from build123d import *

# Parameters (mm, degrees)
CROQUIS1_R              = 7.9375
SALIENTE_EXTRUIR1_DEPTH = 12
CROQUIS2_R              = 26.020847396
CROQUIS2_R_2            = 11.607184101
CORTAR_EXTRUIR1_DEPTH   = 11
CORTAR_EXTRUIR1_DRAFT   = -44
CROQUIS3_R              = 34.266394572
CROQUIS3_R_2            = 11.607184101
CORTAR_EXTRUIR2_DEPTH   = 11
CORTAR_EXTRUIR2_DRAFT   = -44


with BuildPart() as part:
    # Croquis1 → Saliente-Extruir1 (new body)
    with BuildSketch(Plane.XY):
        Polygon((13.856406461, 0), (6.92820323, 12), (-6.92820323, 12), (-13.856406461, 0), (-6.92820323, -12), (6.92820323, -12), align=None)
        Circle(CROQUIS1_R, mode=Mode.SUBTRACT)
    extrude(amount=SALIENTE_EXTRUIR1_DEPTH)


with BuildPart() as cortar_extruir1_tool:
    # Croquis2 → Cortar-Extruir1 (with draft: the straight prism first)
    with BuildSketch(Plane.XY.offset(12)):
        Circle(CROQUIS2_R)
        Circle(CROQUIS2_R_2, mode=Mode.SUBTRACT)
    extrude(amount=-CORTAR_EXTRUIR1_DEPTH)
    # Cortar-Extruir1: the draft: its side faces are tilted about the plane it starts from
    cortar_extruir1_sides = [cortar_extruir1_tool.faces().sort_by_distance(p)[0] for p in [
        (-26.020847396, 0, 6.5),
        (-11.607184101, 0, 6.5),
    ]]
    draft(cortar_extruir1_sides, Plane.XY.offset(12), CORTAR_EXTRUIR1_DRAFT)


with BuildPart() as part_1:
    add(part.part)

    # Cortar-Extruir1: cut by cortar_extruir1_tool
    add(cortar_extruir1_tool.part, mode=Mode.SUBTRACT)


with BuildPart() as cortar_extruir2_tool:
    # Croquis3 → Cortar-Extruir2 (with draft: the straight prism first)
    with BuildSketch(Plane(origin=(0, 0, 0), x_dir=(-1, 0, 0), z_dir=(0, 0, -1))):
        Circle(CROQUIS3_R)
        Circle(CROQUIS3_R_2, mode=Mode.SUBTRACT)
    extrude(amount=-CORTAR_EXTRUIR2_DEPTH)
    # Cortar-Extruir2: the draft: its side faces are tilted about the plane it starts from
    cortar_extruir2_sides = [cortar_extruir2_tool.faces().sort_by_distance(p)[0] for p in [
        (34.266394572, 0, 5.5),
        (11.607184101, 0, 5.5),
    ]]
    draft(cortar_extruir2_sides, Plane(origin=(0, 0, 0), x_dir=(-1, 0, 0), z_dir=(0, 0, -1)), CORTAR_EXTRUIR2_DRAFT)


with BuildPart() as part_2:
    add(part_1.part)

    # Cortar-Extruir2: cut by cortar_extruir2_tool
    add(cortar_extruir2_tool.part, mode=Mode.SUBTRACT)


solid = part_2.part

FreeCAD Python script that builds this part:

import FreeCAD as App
import Part
import Sketcher
from FreeCAD import Vector
Q = App.Units.Quantity


def faces_at(feature, points):
    """Names of the faces that lie closest to the given points."""
    faces = feature.Shape.Faces
    near = lambda p: min(range(len(faces)), key=lambda i: faces[i].distToShape(Part.Vertex(*p))[0])
    return sorted({f"Face{near(p) + 1}" for p in points})


def add_polygon(sketch, points):
    """Adds a closed chain of lines whose ends are joined by coincident constraints."""
    first, n = sketch.GeometryCount, len(points)
    for a, b in zip(points, points[1:] + points[:1]):
        sketch.addGeometry(Part.LineSegment(App.Vector(*a, 0), App.Vector(*b, 0)), False)
    for i in range(n):
        sketch.addConstraint(Sketcher.Constraint("Coincident", first + i, 2, first + (i + 1) % n, 1))

doc = App.newDocument("Part")
body = doc.addObject("PartDesign::Body", "Body")

# Sketch on XY plane
sketch1 = body.newObject("Sketcher::SketchObject", "Sketch")
sketch1.AttachmentSupport = (doc.getObject("XY_Plane"), [""])
sketch1.MapMode = "FlatFace"
add_polygon(sketch1, [(14, 0), (7, 12), (-7, 12), (-14, 0), (-7, -12), (7, -12)])  # lines 0-5
sketch1.addGeometry(Part.Circle(Vector(0, 0, 0), Vector(0, 0, 1), 8), False)  # 6
sketch1.addConstraint([
    Sketcher.Constraint("Horizontal", 1),
    Sketcher.Constraint("Horizontal", 4),
    Sketcher.Constraint("Coincident", 6, 3, -1, 1),
    Sketcher.Constraint("Symmetric", 0, 2, 3, 2, -1, 1),
    Sketcher.Constraint("Symmetric", 2, 2, 5, 2, -1, 1),
    Sketcher.Constraint("PointOnObject", 2, 2, -1),
    Sketcher.Constraint("Parallel", 2, 5),
    Sketcher.Constraint("Vertical", 1, 2, 3, 2),
    Sketcher.Constraint("Angle", 0, Q("120 deg")),
    Sketcher.Constraint("Diameter", 6, 15.875),
    Sketcher.Constraint("DistanceY", -1, 1, 0, 2, 12.0),
    Sketcher.Constraint("DistanceX", 1, 2, 1, 1, 13.856406),
])
pad1 = body.newObject("PartDesign::Pad", "Pad")
pad1.Profile = sketch1
pad1.Length = 12
body2 = doc.addObject("PartDesign::Body", "Body001")

# Sketch on XY plane
sketch2 = body2.newObject("Sketcher::SketchObject", "Sketch001")
sketch2.AttachmentSupport = (doc.getObject("XY_Plane001"), [""])
sketch2.MapMode = "FlatFace"
sketch2.AttachmentOffset = App.Placement(Vector(0, 0, 12), App.Rotation())
sketch2.addGeometry([
    Part.Circle(Vector(0, 0, 0), Vector(0, 0, 1), 26),
    Part.Circle(Vector(0, 0, 0), Vector(0, 0, 1), 12),
], False)
sketch2.addConstraint([
    Sketcher.Constraint("Coincident", 0, 3, -1, 1),
    Sketcher.Constraint("Coincident", 1, 3, -1, 1),
    Sketcher.Constraint("Diameter", 1, 23.214368),
    Sketcher.Constraint("Diameter", 0, 52.041695),
])
pad2 = body2.newObject("PartDesign::Pad", "Pad001")
pad2.Profile = sketch2
pad2.Length = 11
pad2.Reversed = True
doc.recompute()

datumplane = body2.newObject("PartDesign::Plane", "DatumPlane")
datumplane.AttachmentSupport = (doc.getObject("XY_Plane001"), [""])
datumplane.MapMode = "FlatFace"
datumplane.AttachmentOffset = App.Placement(Vector(0, 0, 12), App.Rotation())
draft = body2.newObject("PartDesign::Draft", "Draft")
draft.Base = (pad2, faces_at(pad2, [(-26.021, 0, 6.5), (-11.607, 0, 6.5)]))
draft.NeutralPlane = (datumplane, [""])
draft.Angle = 44
draft.Reversed = True
doc.recompute()

boolean = body.newObject("PartDesign::Boolean", "Boolean")
boolean.Type = "Cut"
boolean.addObjects([body2])
body3 = doc.addObject("PartDesign::Body", "Body002")

# Sketch on XY plane
sketch3 = body3.newObject("Sketcher::SketchObject", "Sketch002")
sketch3.AttachmentSupport = (doc.getObject("XY_Plane002"), [""])
sketch3.MapMode = "FlatFace"
sketch3.addGeometry([
    Part.Circle(Vector(0, 0, 0), Vector(0, 0, 1), 34),
    Part.Circle(Vector(0, 0, 0), Vector(0, 0, 1), 12),
], False)
sketch3.addConstraint([
    Sketcher.Constraint("Coincident", 0, 3, -1, 1),
    Sketcher.Constraint("Coincident", 1, 3, -1, 1),
    Sketcher.Constraint("Diameter", 0, 68.532789),
    Sketcher.Constraint("Diameter", 1, 23.214368),
])
pad3 = body3.newObject("PartDesign::Pad", "Pad002")
pad3.Profile = sketch3
pad3.Length = 11
doc.recompute()

draft2 = body3.newObject("PartDesign::Draft", "Draft001")
draft2.Base = (pad3, faces_at(pad3, [(34.266, 0, 5.5), (11.607, 0, 5.5)]))
draft2.NeutralPlane = (doc.getObject("XY_Plane002"), [""])
draft2.Angle = 44
draft2.Reversed = False
doc.recompute()

boolean2 = body.newObject("PartDesign::Boolean", "Boolean001")
boolean2.Type = "Cut"
boolean2.addObjects([body3])

doc.recompute()
